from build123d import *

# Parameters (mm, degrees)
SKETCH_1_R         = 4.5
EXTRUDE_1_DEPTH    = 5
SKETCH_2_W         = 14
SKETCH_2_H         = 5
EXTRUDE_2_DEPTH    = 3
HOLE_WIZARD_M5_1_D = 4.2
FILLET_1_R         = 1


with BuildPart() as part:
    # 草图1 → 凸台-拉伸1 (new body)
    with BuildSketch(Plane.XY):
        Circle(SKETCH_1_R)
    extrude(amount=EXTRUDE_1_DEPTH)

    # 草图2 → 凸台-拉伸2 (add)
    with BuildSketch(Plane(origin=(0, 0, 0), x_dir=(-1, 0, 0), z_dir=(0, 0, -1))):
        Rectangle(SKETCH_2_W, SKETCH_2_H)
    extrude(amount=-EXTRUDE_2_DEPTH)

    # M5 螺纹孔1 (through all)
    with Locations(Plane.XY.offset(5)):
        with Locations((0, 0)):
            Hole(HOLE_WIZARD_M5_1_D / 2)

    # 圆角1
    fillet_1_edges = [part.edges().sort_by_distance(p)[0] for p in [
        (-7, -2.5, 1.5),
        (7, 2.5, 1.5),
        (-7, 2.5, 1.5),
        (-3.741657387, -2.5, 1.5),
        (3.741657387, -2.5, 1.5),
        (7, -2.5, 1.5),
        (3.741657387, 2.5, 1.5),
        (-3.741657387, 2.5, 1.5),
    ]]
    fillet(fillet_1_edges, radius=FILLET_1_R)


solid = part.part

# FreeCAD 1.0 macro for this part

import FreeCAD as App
import Part
import Sketcher
Q = App.Units.Quantity


def edges_at(feature, points):
    """Names of the edges that pass closest to the given points."""
    edges = feature.Shape.Edges
    near = lambda p: min(range(len(edges)), key=lambda i: edges[i].distToShape(Part.Vertex(*p))[0])
    return sorted({f"Edge{near(p) + 1}" for p in points})

doc = App.newDocument("Part")
body = doc.addObject("PartDesign::Body", "Body")

sketch1 = body.newObject("Sketcher::SketchObject", "Sketch")
sketch1.AttachmentSupport = (doc.getObject("XY_Plane"), [""])
sketch1.MapMode = "FlatFace"
sketch1.addGeometry(Part.Circle(App.Vector(0, 0, 0), App.Vector(0, 0, 1), 4.5), False)
sketch1.addConstraint(Sketcher.Constraint("Coincident", 0, 3, -1, 1))
sketch1.addConstraint(Sketcher.Constraint("Diameter", 0, Q("9 mm")))
pad1 = body.newObject("PartDesign::Pad", "Pad")
pad1.Profile = sketch1
pad1.Length = 5

sketch2 = body.newObject("Sketcher::SketchObject", "Sketch001")
sketch2.AttachmentSupport = (doc.getObject("XY_Plane"), [""])
sketch2.MapMode = "FlatFace"
sketch2.addGeometry(Part.LineSegment(App.Vector(7, 2, 0), App.Vector(7, -2, 0)), False)
sketch2.addGeometry(Part.LineSegment(App.Vector(7, -2, 0), App.Vector(-7, -2, 0)), False)
sketch2.addGeometry(Part.LineSegment(App.Vector(-7, -2, 0), App.Vector(-7, 2, 0)), False)
sketch2.addGeometry(Part.LineSegment(App.Vector(-7, 2, 0), App.Vector(7, 2, 0)), False)
sketch2.addConstraint(Sketcher.Constraint("Coincident", 0, 2, 1, 1))
sketch2.addConstraint(Sketcher.Constraint("Coincident", 1, 2, 2, 1))
sketch2.addConstraint(Sketcher.Constraint("Coincident", 2, 2, 3, 1))
sketch2.addConstraint(Sketcher.Constraint("Coincident", 3, 2, 0, 1))
sketch2.addConstraint(Sketcher.Constraint("Vertical", 0))
sketch2.addConstraint(Sketcher.Constraint("Horizontal", 1))
sketch2.addConstraint(Sketcher.Constraint("Vertical", 2))
sketch2.addConstraint(Sketcher.Constraint("Horizontal", 3))
sketch2.addConstraint(Sketcher.Constraint("Symmetric", 0, 2, 2, 2, -1, 1))
sketch2.addConstraint(Sketcher.Constraint("DistanceX", 1, 2, 1, 1, Q("14 mm")))
sketch2.addConstraint(Sketcher.Constraint("DistanceY", 0, 2, 0, 1, Q("5 mm")))
pad2 = body.newObject("PartDesign::Pad", "Pad001")
pad2.Profile = sketch2
pad2.Length = 3

sketch3 = body.newObject("Sketcher::SketchObject", "Sketch002")
sketch3.AttachmentSupport = (doc.getObject("XY_Plane"), [""])
sketch3.MapMode = "FlatFace"
sketch3.AttachmentOffset = App.Placement(App.Vector(0, 0, 5), App.Rotation())
sketch3.addGeometry(Part.Circle(App.Vector(0, 0, 0), App.Vector(0, 0, 1), 2.1), False)
sketch3.addConstraint(Sketcher.Constraint("Coincident", 0, 3, -1, 1))
sketch3.addConstraint(Sketcher.Constraint("Diameter", 0, Q("4.2 mm")))
doc.recompute()
hole = body.newObject("PartDesign::Hole", "Hole")
hole.Profile = sketch3
hole.ThreadType = "None"
hole.Diameter = 4.2
hole.DepthType = "ThroughAll"
doc.recompute()

fillet = body.newObject("PartDesign::Fillet", "Fillet")
fillet.Base = (hole, edges_at(hole, [
    (-7, -2.5, 1.5),
    (7, 2.5, 1.5),
    (-7, 2.5, 1.5),
    (-3.742, -2.5, 1.5),
    (3.742, -2.5, 1.5),
    (7, -2.5, 1.5),
    (3.742, 2.5, 1.5),
    (-3.742, 2.5, 1.5),
]))
fillet.Radius = 1

doc.recompute()
